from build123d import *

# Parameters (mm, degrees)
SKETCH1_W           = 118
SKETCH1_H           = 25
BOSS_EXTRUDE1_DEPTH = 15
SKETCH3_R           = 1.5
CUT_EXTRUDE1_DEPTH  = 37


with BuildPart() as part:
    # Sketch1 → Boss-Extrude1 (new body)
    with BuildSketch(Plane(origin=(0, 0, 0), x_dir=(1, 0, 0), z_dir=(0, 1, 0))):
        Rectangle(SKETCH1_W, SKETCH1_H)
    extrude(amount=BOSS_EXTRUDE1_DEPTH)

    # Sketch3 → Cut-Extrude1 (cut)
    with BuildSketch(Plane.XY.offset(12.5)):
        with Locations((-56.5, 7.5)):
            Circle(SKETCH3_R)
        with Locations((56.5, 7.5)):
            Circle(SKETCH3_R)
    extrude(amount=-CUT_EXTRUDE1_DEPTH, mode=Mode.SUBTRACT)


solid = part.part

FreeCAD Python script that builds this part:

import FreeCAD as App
import Part
import Sketcher
Q = App.Units.Quantity

doc = App.newDocument("Part")
body = doc.addObject("PartDesign::Body", "Body")

# Sketch on XZ plane
sketch1 = body.newObject("Sketcher::SketchObject", "Sketch")
sketch1.AttachmentSupport = (doc.getObject("XZ_Plane"), [""])
sketch1.MapMode = "FlatFace"
sketch1.addGeometry(Part.LineSegment(App.Vector(-59, -12.5, 0), App.Vector(-59, 12.5, 0)), False)
sketch1.addGeometry(Part.LineSegment(App.Vector(-59, 12.5, 0), App.Vector(59, 12.5, 0)), False)
sketch1.addGeometry(Part.LineSegment(App.Vector(59, 12.5, 0), App.Vector(59, -12.5, 0)), False)
sketch1.addGeometry(Part.LineSegment(App.Vector(59, -12.5, 0), App.Vector(-59, -12.5, 0)), False)
sketch1.addConstraint(Sketcher.Constraint("Coincident", 0, 2, 1, 1))
sketch1.addConstraint(Sketcher.Constraint("Coincident", 1, 2, 2, 1))
sketch1.addConstraint(Sketcher.Constraint("Coincident", 2, 2, 3, 1))
sketch1.addConstraint(Sketcher.Constraint("Coincident", 3, 2, 0, 1))
sketch1.addConstraint(Sketcher.Constraint("Vertical", 0))
sketch1.addConstraint(Sketcher.Constraint("Horizontal", 1))
sketch1.addConstraint(Sketcher.Constraint("Vertical", 2))
sketch1.addConstraint(Sketcher.Constraint("Horizontal", 3))
sketch1.addConstraint(Sketcher.Constraint("Symmetric", 0, 2, 2, 2, -1, 1))
sketch1.addConstraint(Sketcher.Constraint("DistanceX", 1, 1, 1, 2, Q("118 mm")))
sketch1.addConstraint(Sketcher.Constraint("DistanceY", 0, 1, 0, 2, Q("25 mm")))
pad1 = body.newObject("PartDesign::Pad", "Pad")
pad1.Profile = sketch1
pad1.Length = 15
pad1.Reversed = True

# Sketch on XY plane
sketch2 = body.newObject("Sketcher::SketchObject", "Sketch001")
sketch2.AttachmentSupport = (doc.getObject("XY_Plane"), [""])
sketch2.MapMode = "FlatFace"
sketch2.AttachmentOffset = App.Placement(App.Vector(0, 0, 12.5), App.Rotation())
sketch2.addGeometry(Part.Circle(App.Vector(-56.5, 7.5, 0), App.Vector(0, 0, 1), 1.5), False)
sketch2.addGeometry(Part.Circle(App.Vector(56.5, 7.5, 0), App.Vector(0, 0, 1), 1.5), False)
sketch2.addConstraint(Sketcher.Constraint("Equal", 0, 1))
sketch2.addConstraint(Sketcher.Constraint("Symmetric", 0, 3, 1, 3, -2))
sketch2.addConstraint(Sketcher.Constraint("Diameter", 0, Q("3 mm")))
sketch2.addConstraint(Sketcher.Constraint("DistanceX", 0, 3, 1, 3, Q("113 mm")))
sketch2.addConstraint(Sketcher.Constraint("DistanceY", -1, 1, 0, 3, Q("7.5 mm")))
pocket1 = body.newObject("PartDesign::Pocket", "Pocket")
pocket1.Profile = sketch2
pocket1.Length = 37

doc.recompute()
